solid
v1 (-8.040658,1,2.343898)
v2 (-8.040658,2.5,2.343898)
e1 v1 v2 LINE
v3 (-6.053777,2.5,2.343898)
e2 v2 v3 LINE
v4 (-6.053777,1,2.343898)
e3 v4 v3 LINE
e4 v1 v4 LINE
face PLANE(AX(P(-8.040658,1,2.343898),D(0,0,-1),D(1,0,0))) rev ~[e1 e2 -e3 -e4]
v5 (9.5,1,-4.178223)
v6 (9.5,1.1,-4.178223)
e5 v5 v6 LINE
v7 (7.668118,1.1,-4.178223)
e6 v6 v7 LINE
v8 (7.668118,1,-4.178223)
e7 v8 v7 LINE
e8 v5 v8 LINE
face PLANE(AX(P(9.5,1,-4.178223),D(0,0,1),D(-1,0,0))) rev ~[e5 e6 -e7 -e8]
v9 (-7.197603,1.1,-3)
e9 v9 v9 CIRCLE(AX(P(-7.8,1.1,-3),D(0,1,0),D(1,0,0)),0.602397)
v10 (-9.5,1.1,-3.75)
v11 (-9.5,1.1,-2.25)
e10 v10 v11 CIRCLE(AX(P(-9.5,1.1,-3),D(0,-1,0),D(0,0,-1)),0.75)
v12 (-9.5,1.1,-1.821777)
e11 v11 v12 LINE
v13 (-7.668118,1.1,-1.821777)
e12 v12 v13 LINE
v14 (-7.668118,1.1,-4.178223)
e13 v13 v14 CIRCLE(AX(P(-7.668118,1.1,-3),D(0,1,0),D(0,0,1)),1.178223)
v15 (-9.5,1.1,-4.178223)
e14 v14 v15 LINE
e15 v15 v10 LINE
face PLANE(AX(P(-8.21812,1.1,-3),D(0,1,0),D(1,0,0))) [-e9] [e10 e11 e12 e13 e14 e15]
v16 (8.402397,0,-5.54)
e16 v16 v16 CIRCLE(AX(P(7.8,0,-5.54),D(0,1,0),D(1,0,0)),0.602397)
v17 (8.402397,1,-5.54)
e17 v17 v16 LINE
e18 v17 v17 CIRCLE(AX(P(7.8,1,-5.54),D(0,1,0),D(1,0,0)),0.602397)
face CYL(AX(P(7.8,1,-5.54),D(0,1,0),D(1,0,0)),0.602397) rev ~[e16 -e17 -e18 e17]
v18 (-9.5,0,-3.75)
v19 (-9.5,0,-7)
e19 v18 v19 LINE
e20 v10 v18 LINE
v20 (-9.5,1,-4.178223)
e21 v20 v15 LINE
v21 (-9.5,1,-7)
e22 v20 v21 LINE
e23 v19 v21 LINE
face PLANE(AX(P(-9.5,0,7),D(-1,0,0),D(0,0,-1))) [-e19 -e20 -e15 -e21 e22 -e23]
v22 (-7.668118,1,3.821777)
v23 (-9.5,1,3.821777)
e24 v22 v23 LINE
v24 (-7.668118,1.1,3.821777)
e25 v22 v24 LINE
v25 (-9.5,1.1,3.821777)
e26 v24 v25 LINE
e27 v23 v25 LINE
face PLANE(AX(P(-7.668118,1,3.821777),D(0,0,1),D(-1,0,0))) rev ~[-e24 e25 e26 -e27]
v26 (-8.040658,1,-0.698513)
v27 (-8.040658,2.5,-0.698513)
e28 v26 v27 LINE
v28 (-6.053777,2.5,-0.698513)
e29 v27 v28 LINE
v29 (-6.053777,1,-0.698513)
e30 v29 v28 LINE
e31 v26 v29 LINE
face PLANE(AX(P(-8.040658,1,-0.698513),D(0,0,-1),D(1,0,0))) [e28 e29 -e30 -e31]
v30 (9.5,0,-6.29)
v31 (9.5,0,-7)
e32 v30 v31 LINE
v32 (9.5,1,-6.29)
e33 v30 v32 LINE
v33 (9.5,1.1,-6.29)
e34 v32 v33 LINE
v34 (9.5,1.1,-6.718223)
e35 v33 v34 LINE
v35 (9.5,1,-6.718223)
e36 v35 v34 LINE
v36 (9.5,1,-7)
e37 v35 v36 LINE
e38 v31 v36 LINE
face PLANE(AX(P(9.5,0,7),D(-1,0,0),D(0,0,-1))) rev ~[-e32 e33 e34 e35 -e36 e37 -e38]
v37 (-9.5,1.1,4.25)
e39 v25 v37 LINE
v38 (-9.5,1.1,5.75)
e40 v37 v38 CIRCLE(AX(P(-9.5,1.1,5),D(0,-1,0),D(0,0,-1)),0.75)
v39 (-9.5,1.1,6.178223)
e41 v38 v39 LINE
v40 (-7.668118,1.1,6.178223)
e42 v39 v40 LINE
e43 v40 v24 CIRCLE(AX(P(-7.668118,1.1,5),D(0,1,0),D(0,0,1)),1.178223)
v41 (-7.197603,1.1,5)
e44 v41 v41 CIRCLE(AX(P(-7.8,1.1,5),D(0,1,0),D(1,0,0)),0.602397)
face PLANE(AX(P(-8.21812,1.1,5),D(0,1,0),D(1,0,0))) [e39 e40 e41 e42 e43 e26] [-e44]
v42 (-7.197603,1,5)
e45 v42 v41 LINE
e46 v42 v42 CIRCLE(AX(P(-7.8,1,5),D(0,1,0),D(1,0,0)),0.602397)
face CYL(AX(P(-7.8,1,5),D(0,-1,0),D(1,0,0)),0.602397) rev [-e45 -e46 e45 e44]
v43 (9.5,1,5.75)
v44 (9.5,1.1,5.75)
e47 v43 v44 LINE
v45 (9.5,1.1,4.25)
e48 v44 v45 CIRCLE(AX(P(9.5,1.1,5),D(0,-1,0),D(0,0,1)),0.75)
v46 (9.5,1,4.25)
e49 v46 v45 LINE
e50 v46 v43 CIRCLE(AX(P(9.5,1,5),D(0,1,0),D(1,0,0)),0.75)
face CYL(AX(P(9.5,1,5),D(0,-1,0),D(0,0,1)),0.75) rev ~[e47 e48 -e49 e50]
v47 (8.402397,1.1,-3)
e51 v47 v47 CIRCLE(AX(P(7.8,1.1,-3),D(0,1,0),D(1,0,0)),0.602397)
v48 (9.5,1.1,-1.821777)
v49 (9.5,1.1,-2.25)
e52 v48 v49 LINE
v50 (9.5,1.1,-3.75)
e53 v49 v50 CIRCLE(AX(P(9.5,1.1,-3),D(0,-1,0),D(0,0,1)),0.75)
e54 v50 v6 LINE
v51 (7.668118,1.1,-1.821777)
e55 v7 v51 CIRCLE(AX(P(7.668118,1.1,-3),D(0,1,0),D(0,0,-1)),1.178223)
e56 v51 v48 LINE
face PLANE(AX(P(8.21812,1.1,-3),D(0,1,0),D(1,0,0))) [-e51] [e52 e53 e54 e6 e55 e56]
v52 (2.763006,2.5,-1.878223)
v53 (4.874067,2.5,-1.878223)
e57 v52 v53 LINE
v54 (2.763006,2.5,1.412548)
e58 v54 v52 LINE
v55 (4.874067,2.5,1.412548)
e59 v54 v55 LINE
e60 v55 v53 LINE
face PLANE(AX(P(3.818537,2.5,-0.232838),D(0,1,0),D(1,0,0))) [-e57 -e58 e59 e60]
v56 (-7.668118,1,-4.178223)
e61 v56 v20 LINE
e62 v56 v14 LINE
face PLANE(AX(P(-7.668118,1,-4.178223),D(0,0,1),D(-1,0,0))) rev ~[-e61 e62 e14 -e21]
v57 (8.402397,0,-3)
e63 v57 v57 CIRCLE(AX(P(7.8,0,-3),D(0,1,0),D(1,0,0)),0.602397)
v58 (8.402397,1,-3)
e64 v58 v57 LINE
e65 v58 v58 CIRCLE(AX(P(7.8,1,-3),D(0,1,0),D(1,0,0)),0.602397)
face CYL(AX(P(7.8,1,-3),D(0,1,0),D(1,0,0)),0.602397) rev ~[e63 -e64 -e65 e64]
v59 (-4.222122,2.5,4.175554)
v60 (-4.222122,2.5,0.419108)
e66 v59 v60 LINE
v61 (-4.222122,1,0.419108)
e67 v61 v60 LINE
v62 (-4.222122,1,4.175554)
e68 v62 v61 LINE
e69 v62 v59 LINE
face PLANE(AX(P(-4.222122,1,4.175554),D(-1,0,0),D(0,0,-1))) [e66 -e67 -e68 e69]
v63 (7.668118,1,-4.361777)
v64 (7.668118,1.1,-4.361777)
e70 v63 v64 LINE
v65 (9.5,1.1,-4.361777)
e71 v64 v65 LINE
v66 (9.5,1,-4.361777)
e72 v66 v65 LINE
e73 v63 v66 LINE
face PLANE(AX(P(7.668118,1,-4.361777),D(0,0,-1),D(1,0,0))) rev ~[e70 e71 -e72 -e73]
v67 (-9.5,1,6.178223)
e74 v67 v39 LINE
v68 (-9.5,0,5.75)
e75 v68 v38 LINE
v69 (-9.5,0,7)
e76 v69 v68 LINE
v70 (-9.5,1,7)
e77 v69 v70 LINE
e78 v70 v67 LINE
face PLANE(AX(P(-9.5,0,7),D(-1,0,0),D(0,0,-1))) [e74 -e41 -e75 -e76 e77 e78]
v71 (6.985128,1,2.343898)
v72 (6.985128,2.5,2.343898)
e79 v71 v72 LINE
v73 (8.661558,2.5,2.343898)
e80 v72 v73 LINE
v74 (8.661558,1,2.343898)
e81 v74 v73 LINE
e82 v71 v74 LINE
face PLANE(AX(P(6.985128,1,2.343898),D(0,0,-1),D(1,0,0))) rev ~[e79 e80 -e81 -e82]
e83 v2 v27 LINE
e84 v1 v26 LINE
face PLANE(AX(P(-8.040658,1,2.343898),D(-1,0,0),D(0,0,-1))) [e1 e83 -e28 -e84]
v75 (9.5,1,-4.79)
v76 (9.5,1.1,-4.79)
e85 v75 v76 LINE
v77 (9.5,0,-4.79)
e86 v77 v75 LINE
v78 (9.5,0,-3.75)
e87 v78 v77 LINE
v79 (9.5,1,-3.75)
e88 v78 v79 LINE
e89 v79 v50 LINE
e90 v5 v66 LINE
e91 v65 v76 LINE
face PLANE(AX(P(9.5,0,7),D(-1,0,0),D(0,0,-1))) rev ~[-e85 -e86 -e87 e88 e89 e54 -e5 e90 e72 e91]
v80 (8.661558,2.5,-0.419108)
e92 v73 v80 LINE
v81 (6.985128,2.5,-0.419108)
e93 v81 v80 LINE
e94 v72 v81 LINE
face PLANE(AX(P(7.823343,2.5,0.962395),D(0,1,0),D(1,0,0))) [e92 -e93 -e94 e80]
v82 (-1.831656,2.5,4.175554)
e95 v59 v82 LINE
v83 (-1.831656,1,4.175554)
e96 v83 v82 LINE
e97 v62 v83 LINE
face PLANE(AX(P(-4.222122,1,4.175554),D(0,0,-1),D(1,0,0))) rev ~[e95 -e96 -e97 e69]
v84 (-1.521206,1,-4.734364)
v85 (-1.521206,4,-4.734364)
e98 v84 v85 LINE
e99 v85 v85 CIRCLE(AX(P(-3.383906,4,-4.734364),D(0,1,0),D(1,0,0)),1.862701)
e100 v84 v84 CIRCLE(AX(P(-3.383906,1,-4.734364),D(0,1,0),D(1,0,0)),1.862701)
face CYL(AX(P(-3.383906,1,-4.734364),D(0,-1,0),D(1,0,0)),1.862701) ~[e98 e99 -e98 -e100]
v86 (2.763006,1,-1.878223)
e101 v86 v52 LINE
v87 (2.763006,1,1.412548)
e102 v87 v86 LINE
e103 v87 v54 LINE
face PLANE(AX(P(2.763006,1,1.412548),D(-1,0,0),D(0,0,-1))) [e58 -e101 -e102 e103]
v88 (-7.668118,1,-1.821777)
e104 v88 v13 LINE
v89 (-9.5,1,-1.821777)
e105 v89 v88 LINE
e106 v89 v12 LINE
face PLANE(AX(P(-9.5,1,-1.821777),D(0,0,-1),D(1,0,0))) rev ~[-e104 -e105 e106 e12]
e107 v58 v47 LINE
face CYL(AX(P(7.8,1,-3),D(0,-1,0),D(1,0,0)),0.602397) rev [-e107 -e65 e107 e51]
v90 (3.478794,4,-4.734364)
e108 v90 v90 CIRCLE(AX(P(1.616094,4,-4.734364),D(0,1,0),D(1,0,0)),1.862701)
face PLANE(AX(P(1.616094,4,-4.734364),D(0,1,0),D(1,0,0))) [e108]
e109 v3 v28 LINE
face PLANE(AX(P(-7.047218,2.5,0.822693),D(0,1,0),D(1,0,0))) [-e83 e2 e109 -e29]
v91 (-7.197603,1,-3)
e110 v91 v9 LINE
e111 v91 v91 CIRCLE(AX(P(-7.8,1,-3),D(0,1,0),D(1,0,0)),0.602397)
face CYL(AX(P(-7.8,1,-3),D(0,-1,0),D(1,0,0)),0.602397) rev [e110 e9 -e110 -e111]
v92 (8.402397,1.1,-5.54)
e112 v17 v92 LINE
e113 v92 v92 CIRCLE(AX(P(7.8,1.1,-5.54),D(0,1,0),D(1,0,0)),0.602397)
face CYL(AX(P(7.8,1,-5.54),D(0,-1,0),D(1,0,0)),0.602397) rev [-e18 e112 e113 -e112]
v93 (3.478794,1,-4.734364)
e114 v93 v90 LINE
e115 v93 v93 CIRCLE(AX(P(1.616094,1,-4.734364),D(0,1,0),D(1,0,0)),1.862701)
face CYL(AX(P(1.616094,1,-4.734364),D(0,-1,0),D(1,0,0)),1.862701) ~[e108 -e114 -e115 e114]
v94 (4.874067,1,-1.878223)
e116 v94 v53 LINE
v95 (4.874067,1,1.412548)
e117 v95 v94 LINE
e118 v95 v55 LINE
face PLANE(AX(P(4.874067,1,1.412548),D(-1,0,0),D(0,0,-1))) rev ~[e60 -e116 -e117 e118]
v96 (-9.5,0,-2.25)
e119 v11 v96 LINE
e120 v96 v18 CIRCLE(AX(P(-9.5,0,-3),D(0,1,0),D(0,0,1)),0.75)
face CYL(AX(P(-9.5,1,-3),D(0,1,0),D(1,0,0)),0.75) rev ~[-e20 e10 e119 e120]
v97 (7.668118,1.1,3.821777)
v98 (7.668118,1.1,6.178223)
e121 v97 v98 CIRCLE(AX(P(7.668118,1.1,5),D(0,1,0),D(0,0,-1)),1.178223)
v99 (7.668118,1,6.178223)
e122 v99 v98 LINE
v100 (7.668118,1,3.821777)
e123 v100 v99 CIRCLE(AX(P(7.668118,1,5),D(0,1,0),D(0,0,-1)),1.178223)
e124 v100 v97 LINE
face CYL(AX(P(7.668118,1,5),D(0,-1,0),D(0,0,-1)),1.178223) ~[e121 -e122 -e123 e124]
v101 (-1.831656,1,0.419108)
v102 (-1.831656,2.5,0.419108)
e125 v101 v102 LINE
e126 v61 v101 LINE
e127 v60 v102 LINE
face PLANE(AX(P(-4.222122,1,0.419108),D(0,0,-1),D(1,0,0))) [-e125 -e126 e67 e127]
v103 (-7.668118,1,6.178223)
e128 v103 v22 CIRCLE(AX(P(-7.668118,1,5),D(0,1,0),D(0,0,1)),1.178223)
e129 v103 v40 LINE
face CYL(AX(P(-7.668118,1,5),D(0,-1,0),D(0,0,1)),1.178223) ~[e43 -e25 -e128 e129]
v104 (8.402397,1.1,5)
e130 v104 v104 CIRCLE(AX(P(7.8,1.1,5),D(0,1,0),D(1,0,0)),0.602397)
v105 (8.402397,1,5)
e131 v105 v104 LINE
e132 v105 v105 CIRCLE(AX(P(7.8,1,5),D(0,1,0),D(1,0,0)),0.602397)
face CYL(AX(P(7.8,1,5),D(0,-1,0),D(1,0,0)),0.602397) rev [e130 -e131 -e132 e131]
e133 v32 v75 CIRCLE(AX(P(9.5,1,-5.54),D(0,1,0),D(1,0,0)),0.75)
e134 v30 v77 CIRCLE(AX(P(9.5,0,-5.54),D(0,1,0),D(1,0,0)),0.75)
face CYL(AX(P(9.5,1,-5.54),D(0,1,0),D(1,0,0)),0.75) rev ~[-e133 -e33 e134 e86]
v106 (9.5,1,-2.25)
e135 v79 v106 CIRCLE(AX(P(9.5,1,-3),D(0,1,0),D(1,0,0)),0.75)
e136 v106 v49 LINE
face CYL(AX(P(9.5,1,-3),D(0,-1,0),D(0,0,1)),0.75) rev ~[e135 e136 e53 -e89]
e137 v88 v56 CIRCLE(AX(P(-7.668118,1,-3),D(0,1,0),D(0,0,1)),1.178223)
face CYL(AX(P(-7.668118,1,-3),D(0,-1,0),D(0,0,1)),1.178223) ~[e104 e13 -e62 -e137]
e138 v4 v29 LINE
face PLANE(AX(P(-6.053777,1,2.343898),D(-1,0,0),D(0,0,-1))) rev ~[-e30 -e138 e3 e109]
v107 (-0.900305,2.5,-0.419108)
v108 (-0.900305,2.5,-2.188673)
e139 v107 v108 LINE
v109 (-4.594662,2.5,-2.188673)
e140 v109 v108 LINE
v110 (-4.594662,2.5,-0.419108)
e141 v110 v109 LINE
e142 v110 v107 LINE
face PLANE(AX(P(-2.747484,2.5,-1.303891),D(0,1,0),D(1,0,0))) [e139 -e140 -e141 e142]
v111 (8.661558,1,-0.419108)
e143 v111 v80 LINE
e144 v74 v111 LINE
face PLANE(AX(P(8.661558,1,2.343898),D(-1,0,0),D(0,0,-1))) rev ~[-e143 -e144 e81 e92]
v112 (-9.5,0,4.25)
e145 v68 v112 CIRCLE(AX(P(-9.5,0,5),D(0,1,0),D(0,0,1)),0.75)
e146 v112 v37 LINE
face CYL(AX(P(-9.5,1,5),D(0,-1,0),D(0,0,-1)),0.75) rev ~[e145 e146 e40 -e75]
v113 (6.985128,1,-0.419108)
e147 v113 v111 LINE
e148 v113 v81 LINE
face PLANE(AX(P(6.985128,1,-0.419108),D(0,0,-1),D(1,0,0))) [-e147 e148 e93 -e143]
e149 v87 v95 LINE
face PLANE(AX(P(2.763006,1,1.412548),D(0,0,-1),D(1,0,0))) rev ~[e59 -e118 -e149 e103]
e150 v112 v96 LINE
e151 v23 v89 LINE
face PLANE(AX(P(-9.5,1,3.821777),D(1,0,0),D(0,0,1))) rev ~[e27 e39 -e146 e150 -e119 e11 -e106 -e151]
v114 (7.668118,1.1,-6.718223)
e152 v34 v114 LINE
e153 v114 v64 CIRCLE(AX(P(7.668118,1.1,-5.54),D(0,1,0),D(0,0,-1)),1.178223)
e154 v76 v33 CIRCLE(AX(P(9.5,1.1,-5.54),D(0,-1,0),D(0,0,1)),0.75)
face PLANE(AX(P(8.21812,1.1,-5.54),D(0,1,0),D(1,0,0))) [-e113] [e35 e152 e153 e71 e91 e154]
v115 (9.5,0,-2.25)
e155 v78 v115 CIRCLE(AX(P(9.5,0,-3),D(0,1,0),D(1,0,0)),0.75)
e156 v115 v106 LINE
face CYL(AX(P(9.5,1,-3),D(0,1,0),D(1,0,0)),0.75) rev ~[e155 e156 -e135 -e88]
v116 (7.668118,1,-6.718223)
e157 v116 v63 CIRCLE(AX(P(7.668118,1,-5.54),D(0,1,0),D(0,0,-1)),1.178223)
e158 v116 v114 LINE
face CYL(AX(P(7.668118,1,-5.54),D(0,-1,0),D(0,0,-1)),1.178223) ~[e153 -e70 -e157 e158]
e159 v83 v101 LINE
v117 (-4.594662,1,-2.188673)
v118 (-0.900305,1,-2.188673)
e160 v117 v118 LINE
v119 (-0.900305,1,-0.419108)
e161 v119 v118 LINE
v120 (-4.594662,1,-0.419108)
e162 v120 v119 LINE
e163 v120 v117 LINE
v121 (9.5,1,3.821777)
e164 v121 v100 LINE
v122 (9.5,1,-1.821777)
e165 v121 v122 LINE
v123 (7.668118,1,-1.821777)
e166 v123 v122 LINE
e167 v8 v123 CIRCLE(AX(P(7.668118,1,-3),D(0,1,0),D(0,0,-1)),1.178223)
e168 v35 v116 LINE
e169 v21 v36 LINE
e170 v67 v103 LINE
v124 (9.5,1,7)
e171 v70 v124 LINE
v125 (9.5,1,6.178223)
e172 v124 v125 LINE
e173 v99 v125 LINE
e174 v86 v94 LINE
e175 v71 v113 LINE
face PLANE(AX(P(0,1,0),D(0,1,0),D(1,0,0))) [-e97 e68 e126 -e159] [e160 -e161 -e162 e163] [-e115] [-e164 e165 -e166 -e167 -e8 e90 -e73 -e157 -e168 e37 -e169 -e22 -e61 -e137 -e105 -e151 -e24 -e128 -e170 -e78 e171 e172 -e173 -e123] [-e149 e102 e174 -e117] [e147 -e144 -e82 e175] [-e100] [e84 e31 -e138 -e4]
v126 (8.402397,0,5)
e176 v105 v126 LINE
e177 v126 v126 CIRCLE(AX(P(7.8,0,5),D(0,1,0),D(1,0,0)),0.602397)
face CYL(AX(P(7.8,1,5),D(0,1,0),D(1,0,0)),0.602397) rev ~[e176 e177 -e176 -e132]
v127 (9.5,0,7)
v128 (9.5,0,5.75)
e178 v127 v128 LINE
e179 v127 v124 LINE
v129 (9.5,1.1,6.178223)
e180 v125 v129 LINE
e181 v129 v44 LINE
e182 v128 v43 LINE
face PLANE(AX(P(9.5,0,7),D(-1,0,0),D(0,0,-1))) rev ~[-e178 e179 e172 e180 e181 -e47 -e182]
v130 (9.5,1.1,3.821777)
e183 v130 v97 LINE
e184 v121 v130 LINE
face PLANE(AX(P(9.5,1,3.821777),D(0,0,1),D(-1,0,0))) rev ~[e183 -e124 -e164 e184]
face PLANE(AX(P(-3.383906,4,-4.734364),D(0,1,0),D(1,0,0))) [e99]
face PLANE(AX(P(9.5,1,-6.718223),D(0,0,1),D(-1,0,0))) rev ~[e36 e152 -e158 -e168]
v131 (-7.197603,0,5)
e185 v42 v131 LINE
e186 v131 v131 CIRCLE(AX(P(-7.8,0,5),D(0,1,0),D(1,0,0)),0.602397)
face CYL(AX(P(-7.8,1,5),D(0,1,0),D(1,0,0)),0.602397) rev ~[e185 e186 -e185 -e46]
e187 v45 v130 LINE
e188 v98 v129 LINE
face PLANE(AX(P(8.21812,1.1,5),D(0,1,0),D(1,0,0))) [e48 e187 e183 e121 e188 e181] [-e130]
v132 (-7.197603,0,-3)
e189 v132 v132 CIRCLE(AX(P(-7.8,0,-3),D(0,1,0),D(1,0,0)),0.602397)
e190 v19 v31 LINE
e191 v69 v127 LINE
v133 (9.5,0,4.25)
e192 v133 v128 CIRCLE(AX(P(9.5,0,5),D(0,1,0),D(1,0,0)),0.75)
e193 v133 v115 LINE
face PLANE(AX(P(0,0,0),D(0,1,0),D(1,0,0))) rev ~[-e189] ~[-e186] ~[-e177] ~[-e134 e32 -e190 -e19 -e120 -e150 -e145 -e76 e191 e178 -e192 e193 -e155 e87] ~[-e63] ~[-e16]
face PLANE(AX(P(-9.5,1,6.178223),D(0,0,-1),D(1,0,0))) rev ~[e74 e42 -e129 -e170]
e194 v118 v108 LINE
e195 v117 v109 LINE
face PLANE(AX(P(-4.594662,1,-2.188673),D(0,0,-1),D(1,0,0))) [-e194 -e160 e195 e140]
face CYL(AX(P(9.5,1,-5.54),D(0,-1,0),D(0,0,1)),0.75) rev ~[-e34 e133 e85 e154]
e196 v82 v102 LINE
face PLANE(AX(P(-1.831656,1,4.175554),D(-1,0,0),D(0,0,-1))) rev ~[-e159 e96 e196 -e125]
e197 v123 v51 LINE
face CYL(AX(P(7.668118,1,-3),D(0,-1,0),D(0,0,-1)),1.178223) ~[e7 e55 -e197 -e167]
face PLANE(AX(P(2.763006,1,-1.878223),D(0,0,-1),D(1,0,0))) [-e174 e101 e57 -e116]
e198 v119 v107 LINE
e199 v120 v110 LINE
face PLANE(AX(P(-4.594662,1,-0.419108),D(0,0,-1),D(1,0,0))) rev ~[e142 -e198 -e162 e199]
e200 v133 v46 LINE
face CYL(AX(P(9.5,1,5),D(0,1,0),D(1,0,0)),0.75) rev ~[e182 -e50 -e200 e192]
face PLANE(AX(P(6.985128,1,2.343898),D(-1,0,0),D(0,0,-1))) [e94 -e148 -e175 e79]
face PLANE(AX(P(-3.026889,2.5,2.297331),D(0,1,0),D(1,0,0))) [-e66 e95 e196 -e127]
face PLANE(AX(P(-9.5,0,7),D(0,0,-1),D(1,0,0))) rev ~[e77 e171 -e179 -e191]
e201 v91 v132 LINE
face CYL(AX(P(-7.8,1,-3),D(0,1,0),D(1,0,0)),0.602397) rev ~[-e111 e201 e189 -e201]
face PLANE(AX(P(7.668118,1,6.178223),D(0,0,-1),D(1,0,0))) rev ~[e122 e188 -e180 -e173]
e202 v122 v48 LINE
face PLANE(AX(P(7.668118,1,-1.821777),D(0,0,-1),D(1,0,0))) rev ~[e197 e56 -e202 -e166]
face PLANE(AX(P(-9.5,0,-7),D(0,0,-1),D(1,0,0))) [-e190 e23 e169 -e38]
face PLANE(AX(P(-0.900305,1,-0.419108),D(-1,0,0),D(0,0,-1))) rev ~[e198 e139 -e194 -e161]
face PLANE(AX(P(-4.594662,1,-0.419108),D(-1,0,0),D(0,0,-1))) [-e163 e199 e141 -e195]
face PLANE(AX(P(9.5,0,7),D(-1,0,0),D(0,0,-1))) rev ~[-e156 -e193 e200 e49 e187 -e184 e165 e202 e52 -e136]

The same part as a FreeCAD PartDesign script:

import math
import FreeCAD as App
import Part
import Sketcher
from FreeCAD import Vector
Q = App.Units.Quantity

doc = App.newDocument("Part")
body = doc.addObject("PartDesign::Body", "Body")

# Sketch on XZ plane
sketch1 = body.newObject("Sketcher::SketchObject", "Sketch")
sketch1.AttachmentSupport = (doc.getObject("XZ_Plane"), [""])
sketch1.MapMode = "FlatFace"
sketch1.addGeometry(Part.LineSegment(Vector(-9.5, -7, 0), Vector(-9.5, 7, 0)), False)
sketch1.addGeometry(Part.LineSegment(Vector(-9.5, 7, 0), Vector(9.5, 7, 0)), False)
sketch1.addGeometry(Part.LineSegment(Vector(9.5, 7, 0), Vector(9.5, -7, 0)), False)
sketch1.addGeometry(Part.LineSegment(Vector(9.5, -7, 0), Vector(-9.5, -7, 0)), False)
sketch1.addConstraint(Sketcher.Constraint("Coincident", 0, 2, 1, 1))
sketch1.addConstraint(Sketcher.Constraint("Coincident", 1, 2, 2, 1))
sketch1.addConstraint(Sketcher.Constraint("Coincident", 2, 2, 3, 1))
sketch1.addConstraint(Sketcher.Constraint("Coincident", 3, 2, 0, 1))
sketch1.addConstraint(Sketcher.Constraint("Vertical", 0))
sketch1.addConstraint(Sketcher.Constraint("Horizontal", 1))
sketch1.addConstraint(Sketcher.Constraint("Vertical", 2))
sketch1.addConstraint(Sketcher.Constraint("Horizontal", 3))
sketch1.addConstraint(Sketcher.Constraint("Symmetric", 0, 2, 2, 2, -1, 1))
sketch1.addConstraint(Sketcher.Constraint("DistanceX", 1, 1, 1, 2, Q("19 mm")))
sketch1.addConstraint(Sketcher.Constraint("DistanceY", 0, 1, 0, 2, Q("14 mm")))
pad1 = body.newObject("PartDesign::Pad", "Pad")
pad1.Profile = sketch1
pad1.Length = 1
pad1.Reversed = True

# Sketch on XZ plane
sketch2 = body.newObject("Sketcher::SketchObject", "Sketch001")
sketch2.AttachmentSupport = (doc.getObject("XZ_Plane"), [""])
sketch2.MapMode = "FlatFace"
sketch2.AttachmentOffset = App.Placement(Vector(0, 0, -1), App.Rotation())
sketch2.addGeometry(Part.Circle(Vector(-9.5, 5, 0), Vector(0, 0, 1), 0.75), False)
sketch2.addGeometry(Part.Circle(Vector(-9.5, -3, 0), Vector(0, 0, 1), 0.75), False)
sketch2.addGeometry(Part.Circle(Vector(9.5, -3, 0), Vector(0, 0, 1), 0.75), False)
sketch2.addGeometry(Part.Circle(Vector(9.5, 5, 0), Vector(0, 0, 1), 0.75), False)
sketch2.addGeometry(Part.Circle(Vector(9.5, -5.54, 0), Vector(0, 0, 1), 0.75), False)
sketch2.addGeometry(Part.Circle(Vector(-7.8, -3, 0), Vector(0, 0, 1), 0.602397), False)
sketch2.addGeometry(Part.Circle(Vector(-7.8, 5, 0), Vector(0, 0, 1), 0.602397), False)
sketch2.addGeometry(Part.Circle(Vector(7.8, -3, 0), Vector(0, 0, 1), 0.602397), False)
sketch2.addGeometry(Part.Circle(Vector(7.8, 5, 0), Vector(0, 0, 1), 0.602397), False)
sketch2.addGeometry(Part.Circle(Vector(7.8, -5.54, 0), Vector(0, 0, 1), 0.602397), False)
sketch2.addConstraint(Sketcher.Constraint("Equal", 0, 1))
sketch2.addConstraint(Sketcher.Constraint("Equal", 1, 2))
sketch2.addConstraint(Sketcher.Constraint("Equal", 2, 3))
sketch2.addConstraint(Sketcher.Constraint("Equal", 3, 4))
sketch2.addConstraint(Sketcher.Constraint("Equal", 5, 6))
sketch2.addConstraint(Sketcher.Constraint("Equal", 6, 7))
sketch2.addConstraint(Sketcher.Constraint("Equal", 7, 8))
sketch2.addConstraint(Sketcher.Constraint("Equal", 8, 9))
sketch2.addConstraint(Sketcher.Constraint("Symmetric", 1, 3, 2, 3, -2))
sketch2.addConstraint(Sketcher.Constraint("Symmetric", 0, 3, 3, 3, -2))
sketch2.addConstraint(Sketcher.Constraint("Symmetric", 5, 3, 7, 3, -2))
sketch2.addConstraint(Sketcher.Constraint("Symmetric", 6, 3, 8, 3, -2))
sketch2.addConstraint(Sketcher.Constraint("Horizontal", 2, 3, 5, 3))
sketch2.addConstraint(Sketcher.Constraint("Horizontal", 3, 3, 6, 3))
sketch2.addConstraint(Sketcher.Constraint("Horizontal", 4, 3, 9, 3))
sketch2.addConstraint(Sketcher.Constraint("Vertical", 0, 3, 1, 3))
sketch2.addConstraint(Sketcher.Constraint("Vertical", 3, 3, 4, 3))
sketch2.addConstraint(Sketcher.Constraint("Vertical", 5, 3, 6, 3))
sketch2.addConstraint(Sketcher.Constraint("Vertical", 8, 3, 9, 3))
sketch2.addConstraint(Sketcher.Constraint("Diameter", 0, Q("1.5 mm")))
sketch2.addConstraint(Sketcher.Constraint("DistanceY", -1, 1, 0, 3, Q("5 mm")))
sketch2.addConstraint(Sketcher.Constraint("DistanceY", 1, 3, -1, 1, Q("3 mm")))
sketch2.addConstraint(Sketcher.Constraint("DistanceX", 1, 3, 2, 3, Q("19 mm")))
sketch2.addConstraint(Sketcher.Constraint("DistanceX", 5, 3, -1, 1, Q("7.8 mm")))
sketch2.addConstraint(Sketcher.Constraint("DistanceY", 4, 3, -1, 1, Q("5.54 mm")))
sketch2.addConstraint(Sketcher.Constraint("Diameter", 5, Q("1.204793 mm")))
pocket1 = body.newObject("PartDesign::Pocket", "Pocket")
pocket1.Profile = sketch2
pocket1.Type = "ThroughAll"
pocket1.Reversed = True

# Sketch on XZ plane
sketch3 = body.newObject("Sketcher::SketchObject", "Sketch002")
sketch3.AttachmentSupport = (doc.getObject("XZ_Plane"), [""])
sketch3.MapMode = "FlatFace"
sketch3.AttachmentOffset = App.Placement(Vector(0, 0, -1), App.Rotation())
sketch3.addGeometry(Part.Circle(Vector(-3.383906, -4.734364, 0), Vector(0, 0, 1), 1.862701), False)
sketch3.addGeometry(Part.Circle(Vector(1.616094, -4.734364, 0), Vector(0, 0, 1), 1.862701), False)
sketch3.addConstraint(Sketcher.Constraint("Equal", 0, 1))
sketch3.addConstraint(Sketcher.Constraint("Horizontal", 0, 3, 1, 3))
sketch3.addConstraint(Sketcher.Constraint("DistanceX", 0, 3, 1, 3, Q("5 mm")))
sketch3.addConstraint(Sketcher.Constraint("Diameter", 0, Q("3.725401 mm")))
sketch3.addConstraint(Sketcher.Constraint("DistanceX", 0, 3, -1, 1, Q("3.383906 mm")))
sketch3.addConstraint(Sketcher.Constraint("DistanceY", 0, 3, -1, 1, Q("4.734364 mm")))
pad2 = body.newObject("PartDesign::Pad", "Pad001")
pad2.Profile = sketch3
pad2.Length = 3
pad2.Reversed = True

# Sketch on XZ plane
sketch4 = body.newObject("Sketcher::SketchObject", "Sketch003")
sketch4.AttachmentSupport = (doc.getObject("XZ_Plane"), [""])
sketch4.MapMode = "FlatFace"
sketch4.AttachmentOffset = App.Placement(Vector(0, 0, -1), App.Rotation())
sketch4.addGeometry(Part.LineSegment(Vector(-7.668118, 3.821777, 0), Vector(-9.5, 3.821777, 0)), False)
sketch4.addGeometry(Part.LineSegment(Vector(-9.5, 3.821777, 0), Vector(-9.5, 4.25, 0)), False)
sketch4.addGeometry(Part.ArcOfCircle(Part.Circle(Vector(-9.5, 5, 0), Vector(0, 0, 1), 0.75), math.radians(-90), math.radians(90)), False)
sketch4.addGeometry(Part.LineSegment(Vector(-9.5, 5.75, 0), Vector(-9.5, 6.178223, 0)), False)
sketch4.addGeometry(Part.LineSegment(Vector(-9.5, 6.178223, 0), Vector(-7.668118, 6.178223, 0)), False)
sketch4.addGeometry(Part.ArcOfCircle(Part.Circle(Vector(-7.668118, 5, 0), Vector(0, 0, 1), 1.178223), math.radians(-90), math.radians(90)), False)
sketch4.addGeometry(Part.Circle(Vector(-7.8, 5, 0), Vector(0, 0, 1), 0.602397), False)
sketch4.addGeometry(Part.LineSegment(Vector(-9.5, -2.25, 0), Vector(-9.5, -1.821777, 0)), False)
sketch4.addGeometry(Part.LineSegment(Vector(-9.5, -1.821777, 0), Vector(-7.668118, -1.821777, 0)), False)
sketch4.addGeometry(Part.ArcOfCircle(Part.Circle(Vector(-7.668118, -3, 0), Vector(0, 0, 1), 1.178223), math.radians(-90), math.radians(90)), False)
sketch4.addGeometry(Part.LineSegment(Vector(-7.668118, -4.178223, 0), Vector(-9.5, -4.178223, 0)), False)
sketch4.addGeometry(Part.LineSegment(Vector(-9.5, -4.178223, 0), Vector(-9.5, -3.75, 0)), False)
sketch4.addGeometry(Part.ArcOfCircle(Part.Circle(Vector(-9.5, -3, 0), Vector(0, 0, 1), 0.75), math.radians(-90), math.radians(90)), False)
sketch4.addGeometry(Part.Circle(Vector(-7.8, -3, 0), Vector(0, 0, 1), 0.602397), False)
sketch4.addGeometry(Part.LineSegment(Vector(7.668118, 6.178223, 0), Vector(9.5, 6.178223, 0)), False)
sketch4.addGeometry(Part.LineSegment(Vector(9.5, 6.178223, 0), Vector(9.5, 5.75, 0)), False)
sketch4.addGeometry(Part.ArcOfCircle(Part.Circle(Vector(9.5, 5, 0), Vector(0, 0, 1), 0.75), math.radians(90), math.radians(270)), False)
sketch4.addGeometry(Part.LineSegment(Vector(9.5, 4.25, 0), Vector(9.5, 3.821777, 0)), False)
sketch4.addGeometry(Part.LineSegment(Vector(9.5, 3.821777, 0), Vector(7.668118, 3.821777, 0)), False)
sketch4.addGeometry(Part.ArcOfCircle(Part.Circle(Vector(7.668118, 5, 0), Vector(0, 0, 1), 1.178223), math.radians(90), math.radians(270)), False)
sketch4.addGeometry(Part.Circle(Vector(7.8, 5, 0), Vector(0, 0, 1), 0.602397), False)
sketch4.addGeometry(Part.LineSegment(Vector(9.5, -6.29, 0), Vector(9.5, -6.718223, 0)), False)
sketch4.addGeometry(Part.LineSegment(Vector(9.5, -6.718223, 0), Vector(7.668118, -6.718223, 0)), False)
sketch4.addGeometry(Part.ArcOfCircle(Part.Circle(Vector(7.668118, -5.54, 0), Vector(0, 0, 1), 1.178223), math.radians(90), math.radians(270)), False)
sketch4.addGeometry(Part.LineSegment(Vector(7.668118, -4.361777, 0), Vector(9.5, -4.361777, 0)), False)
sketch4.addGeometry(Part.LineSegment(Vector(9.5, -4.361777, 0), Vector(9.5, -4.79, 0)), False)
sketch4.addGeometry(Part.ArcOfCircle(Part.Circle(Vector(9.5, -5.54, 0), Vector(0, 0, 1), 0.75), math.radians(90), math.radians(270)), False)
sketch4.addGeometry(Part.Circle(Vector(7.8, -5.54, 0), Vector(0, 0, 1), 0.602397), False)
sketch4.addGeometry(Part.LineSegment(Vector(7.668118, -1.821777, 0), Vector(9.5, -1.821777, 0)), False)
sketch4.addGeometry(Part.LineSegment(Vector(9.5, -1.821777, 0), Vector(9.5, -2.25, 0)), False)
sketch4.addGeometry(Part.ArcOfCircle(Part.Circle(Vector(9.5, -3, 0), Vector(0, 0, 1), 0.75), math.radians(90), math.radians(270)), False)
sketch4.addGeometry(Part.LineSegment(Vector(9.5, -3.75, 0), Vector(9.5, -4.178223, 0)), False)
sketch4.addGeometry(Part.LineSegment(Vector(9.5, -4.178223, 0), Vector(7.668118, -4.178223, 0)), False)
sketch4.addGeometry(Part.ArcOfCircle(Part.Circle(Vector(7.668118, -3, 0), Vector(0, 0, 1), 1.178223), math.radians(90), math.radians(270)), False)
sketch4.addGeometry(Part.Circle(Vector(7.8, -3, 0), Vector(0, 0, 1), 0.602397), False)
sketch4.addConstraint(Sketcher.Constraint("Coincident", 0, 2, 1, 1))
sketch4.addConstraint(Sketcher.Constraint("Coincident", 1, 2, 2, 1))
sketch4.addConstraint(Sketcher.Constraint("Coincident", 2, 2, 3, 1))
sketch4.addConstraint(Sketcher.Constraint("Coincident", 3, 2, 4, 1))
sketch4.addConstraint(Sketcher.Constraint("Tangent", 4, 2, 5, 2))
sketch4.addConstraint(Sketcher.Constraint("Tangent", 5, 1, 0, 1))
sketch4.addConstraint(Sketcher.Constraint("Coincident", 7, 2, 8, 1))
sketch4.addConstraint(Sketcher.Constraint("Tangent", 8, 2, 9, 2))
sketch4.addConstraint(Sketcher.Constraint("Tangent", 9, 1, 10, 1))
sketch4.addConstraint(Sketcher.Constraint("Coincident", 10, 2, 11, 1))
sketch4.addConstraint(Sketcher.Constraint("Coincident", 11, 2, 12, 1))
sketch4.addConstraint(Sketcher.Constraint("Coincident", 12, 2, 7, 1))
sketch4.addConstraint(Sketcher.Constraint("Coincident", 14, 2, 15, 1))
sketch4.addConstraint(Sketcher.Constraint("Coincident", 15, 2, 16, 1))
sketch4.addConstraint(Sketcher.Constraint("Coincident", 16, 2, 17, 1))
sketch4.addConstraint(Sketcher.Constraint("Coincident", 17, 2, 18, 1))
sketch4.addConstraint(Sketcher.Constraint("Tangent", 18, 2, 19, 2))
sketch4.addConstraint(Sketcher.Constraint("Tangent", 19, 1, 14, 1))
sketch4.addConstraint(Sketcher.Constraint("Coincident", 21, 2, 22, 1))
sketch4.addConstraint(Sketcher.Constraint("Tangent", 22, 2, 23, 2))
sketch4.addConstraint(Sketcher.Constraint("Tangent", 23, 1, 24, 1))
sketch4.addConstraint(Sketcher.Constraint("Coincident", 24, 2, 25, 1))
sketch4.addConstraint(Sketcher.Constraint("Coincident", 25, 2, 26, 1))
sketch4.addConstraint(Sketcher.Constraint("Coincident", 26, 2, 21, 1))
sketch4.addConstraint(Sketcher.Constraint("Coincident", 28, 2, 29, 1))
sketch4.addConstraint(Sketcher.Constraint("Coincident", 29, 2, 30, 1))
sketch4.addConstraint(Sketcher.Constraint("Coincident", 30, 2, 31, 1))
sketch4.addConstraint(Sketcher.Constraint("Coincident", 31, 2, 32, 1))
sketch4.addConstraint(Sketcher.Constraint("Tangent", 32, 2, 33, 2))
sketch4.addConstraint(Sketcher.Constraint("Tangent", 33, 1, 28, 1))
sketch4.addConstraint(Sketcher.Constraint("Horizontal", 0))
sketch4.addConstraint(Sketcher.Constraint("Vertical", 1))
sketch4.addConstraint(Sketcher.Constraint("Vertical", 3))
sketch4.addConstraint(Sketcher.Constraint("Horizontal", 4))
sketch4.addConstraint(Sketcher.Constraint("Vertical", 7))
sketch4.addConstraint(Sketcher.Constraint("Horizontal", 8))
sketch4.addConstraint(Sketcher.Constraint("Horizontal", 10))
sketch4.addConstraint(Sketcher.Constraint("Vertical", 11))
sketch4.addConstraint(Sketcher.Constraint("Horizontal", 14))
sketch4.addConstraint(Sketcher.Constraint("Vertical", 15))
sketch4.addConstraint(Sketcher.Constraint("Vertical", 17))
sketch4.addConstraint(Sketcher.Constraint("Horizontal", 18))
sketch4.addConstraint(Sketcher.Constraint("Vertical", 21))
sketch4.addConstraint(Sketcher.Constraint("Horizontal", 22))
sketch4.addConstraint(Sketcher.Constraint("Horizontal", 24))
sketch4.addConstraint(Sketcher.Constraint("Vertical", 25))
sketch4.addConstraint(Sketcher.Constraint("Horizontal", 28))
sketch4.addConstraint(Sketcher.Constraint("Vertical", 29))
sketch4.addConstraint(Sketcher.Constraint("Vertical", 31))
sketch4.addConstraint(Sketcher.Constraint("Horizontal", 32))
sketch4.addConstraint(Sketcher.Constraint("Equal", 5, 9))
sketch4.addConstraint(Sketcher.Constraint("Equal", 2, 12))
sketch4.addConstraint(Sketcher.Constraint("Equal", 6, 13))
sketch4.addConstraint(Sketcher.Constraint("Equal", 12, 16))
sketch4.addConstraint(Sketcher.Constraint("Equal", 9, 19))
sketch4.addConstraint(Sketcher.Constraint("Equal", 13, 20))
sketch4.addConstraint(Sketcher.Constraint("Equal", 19, 23))
sketch4.addConstraint(Sketcher.Constraint("Equal", 16, 26))
sketch4.addConstraint(Sketcher.Constraint("Equal", 20, 27))
sketch4.addConstraint(Sketcher.Constraint("Equal", 26, 30))
sketch4.addConstraint(Sketcher.Constraint("Equal", 23, 33))
sketch4.addConstraint(Sketcher.Constraint("Equal", 27, 34))
sketch4.addConstraint(Sketcher.Constraint("Symmetric", 2, 3, 16, 3, -2))
sketch4.addConstraint(Sketcher.Constraint("Symmetric", 5, 3, 19, 3, -2))
sketch4.addConstraint(Sketcher.Constraint("Symmetric", 6, 3, 20, 3, -2))
sketch4.addConstraint(Sketcher.Constraint("Symmetric", 12, 3, 30, 3, -2))
sketch4.addConstraint(Sketcher.Constraint("Symmetric", 9, 3, 33, 3, -2))
sketch4.addConstraint(Sketcher.Constraint("Symmetric", 13, 3, 34, 3, -2))
sketch4.addConstraint(Sketcher.Constraint("Horizontal", 2, 3, 5, 3))
sketch4.addConstraint(Sketcher.Constraint("Horizontal", 5, 3, 6, 3))
sketch4.addConstraint(Sketcher.Constraint("Horizontal", 9, 3, 12, 3))
sketch4.addConstraint(Sketcher.Constraint("Horizontal", 12, 3, 13, 3))
sketch4.addConstraint(Sketcher.Constraint("Horizontal", 23, 3, 26, 3))
sketch4.addConstraint(Sketcher.Constraint("Horizontal", 26, 3, 27, 3))
sketch4.addConstraint(Sketcher.Constraint("Vertical", 5, 3, 9, 3))
sketch4.addConstraint(Sketcher.Constraint("Vertical", 2, 3, 12, 3))
sketch4.addConstraint(Sketcher.Constraint("Vertical", 6, 3, 13, 3))
sketch4.addConstraint(Sketcher.Constraint("Vertical", 19, 3, 23, 3))
sketch4.addConstraint(Sketcher.Constraint("Vertical", 16, 3, 26, 3))
sketch4.addConstraint(Sketcher.Constraint("Vertical", 20, 3, 27, 3))
sketch4.addConstraint(Sketcher.Constraint("Vertical", 12, 3, 0, 2))
sketch4.addConstraint(Sketcher.Constraint("Vertical", 1, 2, 2, 2))
sketch4.addConstraint(Sketcher.Constraint("Vertical", 3, 2, 7, 2))
sketch4.addConstraint(Sketcher.Constraint("Vertical", 7, 2, 10, 2))
sketch4.addConstraint(Sketcher.Constraint("Vertical", 30, 3, 14, 2))
sketch4.addConstraint(Sketcher.Constraint("Vertical", 15, 2, 16, 2))
sketch4.addConstraint(Sketcher.Constraint("Vertical", 17, 2, 21, 2))
sketch4.addConstraint(Sketcher.Constraint("Vertical", 21, 2, 24, 2))
sketch4.addConstraint(Sketcher.Constraint("Vertical", 26, 2, 28, 2))
sketch4.addConstraint(Sketcher.Constraint("Vertical", 29, 2, 30, 2))
sketch4.addConstraint(Sketcher.Constraint("Radius", 2, Q("0.75 mm")))
sketch4.addConstraint(Sketcher.Constraint("DistanceY", -1, 1, 2, 3, Q("5 mm")))
sketch4.addConstraint(Sketcher.Constraint("DistanceY", 9, 3, -1, 1, Q("3 mm")))
sketch4.addConstraint(Sketcher.Constraint("DistanceX", 2, 3, 16, 3, Q("19 mm")))
sketch4.addConstraint(Sketcher.Constraint("DistanceX", 6, 3, -1, 1, Q("7.8 mm")))
sketch4.addConstraint(Sketcher.Constraint("DistanceY", 23, 3, -1, 1, Q("5.54 mm")))
sketch4.addConstraint(Sketcher.Constraint("Diameter", 6, Q("1.204793 mm")))
sketch4.addConstraint(Sketcher.Constraint("Radius", 5, Q("1.178223 mm")))
sketch4.addConstraint(Sketcher.Constraint("DistanceX", 0, 2, 0, 1, Q("1.831882 mm")))
pad3 = body.newObject("PartDesign::Pad", "Pad002")
pad3.Profile = sketch4
pad3.Length = 0.1
pad3.Reversed = True

# Sketch on XZ plane
sketch5 = body.newObject("Sketcher::SketchObject", "Sketch004")
sketch5.AttachmentSupport = (doc.getObject("XZ_Plane"), [""])
sketch5.MapMode = "FlatFace"
sketch5.AttachmentOffset = App.Placement(Vector(0, 0, -1), App.Rotation())
sketch5.addGeometry(Part.LineSegment(Vector(-4.222122, 0.419108, 0), Vector(-4.222122, 4.175554, 0)), False)
sketch5.addGeometry(Part.LineSegment(Vector(-4.222122, 4.175554, 0), Vector(-1.831656, 4.175554, 0)), False)
sketch5.addGeometry(Part.LineSegment(Vector(-1.831656, 4.175554, 0), Vector(-1.831656, 0.419108, 0)), False)
sketch5.addGeometry(Part.LineSegment(Vector(-1.831656, 0.419108, 0), Vector(-4.222122, 0.419108, 0)), False)
sketch5.addGeometry(Part.LineSegment(Vector(2.763006, -1.878223, 0), Vector(2.763006, 1.412548, 0)), False)
sketch5.addGeometry(Part.LineSegment(Vector(2.763006, 1.412548, 0), Vector(4.874067, 1.412548, 0)), False)
sketch5.addGeometry(Part.LineSegment(Vector(4.874067, 1.412548, 0), Vector(4.874067, -1.878223, 0)), False)
sketch5.addGeometry(Part.LineSegment(Vector(4.874067, -1.878223, 0), Vector(2.763006, -1.878223, 0)), False)
sketch5.addGeometry(Part.LineSegment(Vector(-8.040658, -0.698513, 0), Vector(-8.040658, 2.343898, 0)), False)
sketch5.addGeometry(Part.LineSegment(Vector(-8.040658, 2.343898, 0), Vector(-6.053777, 2.343898, 0)), False)
sketch5.addGeometry(Part.LineSegment(Vector(-6.053777, 2.343898, 0), Vector(-6.053777, -0.698513, 0)), False)
sketch5.addGeometry(Part.LineSegment(Vector(-6.053777, -0.698513, 0), Vector(-8.040658, -0.698513, 0)), False)
sketch5.addGeometry(Part.LineSegment(Vector(-4.594662, -2.188673, 0), Vector(-4.594662, -0.419108, 0)), False)
sketch5.addGeometry(Part.LineSegment(Vector(-4.594662, -0.419108, 0), Vector(-0.900305, -0.419108, 0)), False)
sketch5.addGeometry(Part.LineSegment(Vector(-0.900305, -0.419108, 0), Vector(-0.900305, -2.188673, 0)), False)
sketch5.addGeometry(Part.LineSegment(Vector(-0.900305, -2.188673, 0), Vector(-4.594662, -2.188673, 0)), False)
sketch5.addGeometry(Part.LineSegment(Vector(6.985128, -0.419108, 0), Vector(6.985128, 2.343898, 0)), False)
sketch5.addGeometry(Part.LineSegment(Vector(6.985128, 2.343898, 0), Vector(8.661558, 2.343898, 0)), False)
sketch5.addGeometry(Part.LineSegment(Vector(8.661558, 2.343898, 0), Vector(8.661558, -0.419108, 0)), False)
sketch5.addGeometry(Part.LineSegment(Vector(8.661558, -0.419108, 0), Vector(6.985128, -0.419108, 0)), False)
sketch5.addConstraint(Sketcher.Constraint("Coincident", 0, 2, 1, 1))
sketch5.addConstraint(Sketcher.Constraint("Coincident", 1, 2, 2, 1))
sketch5.addConstraint(Sketcher.Constraint("Coincident", 2, 2, 3, 1))
sketch5.addConstraint(Sketcher.Constraint("Coincident", 3, 2, 0, 1))
sketch5.addConstraint(Sketcher.Constraint("Coincident", 4, 2, 5, 1))
sketch5.addConstraint(Sketcher.Constraint("Coincident", 5, 2, 6, 1))
sketch5.addConstraint(Sketcher.Constraint("Coincident", 6, 2, 7, 1))
sketch5.addConstraint(Sketcher.Constraint("Coincident", 7, 2, 4, 1))
sketch5.addConstraint(Sketcher.Constraint("Coincident", 8, 2, 9, 1))
sketch5.addConstraint(Sketcher.Constraint("Coincident", 9, 2, 10, 1))
sketch5.addConstraint(Sketcher.Constraint("Coincident", 10, 2, 11, 1))
sketch5.addConstraint(Sketcher.Constraint("Coincident", 11, 2, 8, 1))
sketch5.addConstraint(Sketcher.Constraint("Coincident", 12, 2, 13, 1))
sketch5.addConstraint(Sketcher.Constraint("Coincident", 13, 2, 14, 1))
sketch5.addConstraint(Sketcher.Constraint("Coincident", 14, 2, 15, 1))
sketch5.addConstraint(Sketcher.Constraint("Coincident", 15, 2, 12, 1))
sketch5.addConstraint(Sketcher.Constraint("Coincident", 16, 2, 17, 1))
sketch5.addConstraint(Sketcher.Constraint("Coincident", 17, 2, 18, 1))
sketch5.addConstraint(Sketcher.Constraint("Coincident", 18, 2, 19, 1))
sketch5.addConstraint(Sketcher.Constraint("Coincident", 19, 2, 16, 1))
sketch5.addConstraint(Sketcher.Constraint("Vertical", 0))
sketch5.addConstraint(Sketcher.Constraint("Horizontal", 1))
sketch5.addConstraint(Sketcher.Constraint("Vertical", 2))
sketch5.addConstraint(Sketcher.Constraint("Horizontal", 3))
sketch5.addConstraint(Sketcher.Constraint("Vertical", 4))
sketch5.addConstraint(Sketcher.Constraint("Horizontal", 5))
sketch5.addConstraint(Sketcher.Constraint("Vertical", 6))
sketch5.addConstraint(Sketcher.Constraint("Horizontal", 7))
sketch5.addConstraint(Sketcher.Constraint("Vertical", 8))
sketch5.addConstraint(Sketcher.Constraint("Horizontal", 9))
sketch5.addConstraint(Sketcher.Constraint("Vertical", 10))
sketch5.addConstraint(Sketcher.Constraint("Horizontal", 11))
sketch5.addConstraint(Sketcher.Constraint("Vertical", 12))
sketch5.addConstraint(Sketcher.Constraint("Horizontal", 13))
sketch5.addConstraint(Sketcher.Constraint("Vertical", 14))
sketch5.addConstraint(Sketcher.Constraint("Horizontal", 15))
sketch5.addConstraint(Sketcher.Constraint("Vertical", 16))
sketch5.addConstraint(Sketcher.Constraint("Horizontal", 17))
sketch5.addConstraint(Sketcher.Constraint("Vertical", 18))
sketch5.addConstraint(Sketcher.Constraint("Horizontal", 19))
sketch5.addConstraint(Sketcher.Constraint("Horizontal", 9, 2, 16, 2))
sketch5.addConstraint(Sketcher.Constraint("Horizontal", 13, 2, 18, 2))
sketch5.addConstraint(Sketcher.Constraint("DistanceX", 5, 1, 5, 2, Q("2.111061 mm")))
sketch5.addConstraint(Sketcher.Constraint("DistanceX", 9, 1, 9, 2, Q("1.986881 mm")))
sketch5.addConstraint(Sketcher.Constraint("DistanceX", 17, 1, 17, 2, Q("1.676431 mm")))
sketch5.addConstraint(Sketcher.Constraint("DistanceY", 4, 1, 4, 2, Q("3.290771 mm")))
sketch5.addConstraint(Sketcher.Constraint("DistanceY", 8, 1, 8, 2, Q("3.042411 mm")))
sketch5.addConstraint(Sketcher.Constraint("DistanceY", -1, 1, 8, 2, Q("2.343898 mm")))
sketch5.addConstraint(Sketcher.Constraint("DistanceX", 1, 1, 1, 2, Q("2.390466 mm")))
sketch5.addConstraint(Sketcher.Constraint("DistanceX", 13, 1, 13, 2, Q("3.694356 mm")))
sketch5.addConstraint(Sketcher.Constraint("DistanceY", 0, 1, 0, 2, Q("3.756447 mm")))
sketch5.addConstraint(Sketcher.Constraint("DistanceY", 12, 1, 12, 2, Q("1.769566 mm")))
sketch5.addConstraint(Sketcher.Constraint("DistanceY", 16, 1, 16, 2, Q("2.763006 mm")))
sketch5.addConstraint(Sketcher.Constraint("DistanceX", 0, 2, -1, 1, Q("4.222122 mm")))
sketch5.addConstraint(Sketcher.Constraint("DistanceY", -1, 1, 4, 2, Q("1.412548 mm")))
sketch5.addConstraint(Sketcher.Constraint("DistanceX", 8, 2, -1, 1, Q("8.040658 mm")))
sketch5.addConstraint(Sketcher.Constraint("DistanceX", 12, 2, -1, 1, Q("4.594662 mm")))
sketch5.addConstraint(Sketcher.Constraint("DistanceX", -1, 1, 17, 2, Q("8.661558 mm")))
sketch5.addConstraint(Sketcher.Constraint("DistanceX", 2, 2, 4, 2, Q("4.594662 mm")))
sketch5.addConstraint(Sketcher.Constraint("DistanceY", 2, 2, 4, 2, Q("0.99344 mm")))
pad4 = body.newObject("PartDesign::Pad", "Pad003")
pad4.Profile = sketch5
pad4.Length = 1.5
pad4.Reversed = True

doc.recompute()
